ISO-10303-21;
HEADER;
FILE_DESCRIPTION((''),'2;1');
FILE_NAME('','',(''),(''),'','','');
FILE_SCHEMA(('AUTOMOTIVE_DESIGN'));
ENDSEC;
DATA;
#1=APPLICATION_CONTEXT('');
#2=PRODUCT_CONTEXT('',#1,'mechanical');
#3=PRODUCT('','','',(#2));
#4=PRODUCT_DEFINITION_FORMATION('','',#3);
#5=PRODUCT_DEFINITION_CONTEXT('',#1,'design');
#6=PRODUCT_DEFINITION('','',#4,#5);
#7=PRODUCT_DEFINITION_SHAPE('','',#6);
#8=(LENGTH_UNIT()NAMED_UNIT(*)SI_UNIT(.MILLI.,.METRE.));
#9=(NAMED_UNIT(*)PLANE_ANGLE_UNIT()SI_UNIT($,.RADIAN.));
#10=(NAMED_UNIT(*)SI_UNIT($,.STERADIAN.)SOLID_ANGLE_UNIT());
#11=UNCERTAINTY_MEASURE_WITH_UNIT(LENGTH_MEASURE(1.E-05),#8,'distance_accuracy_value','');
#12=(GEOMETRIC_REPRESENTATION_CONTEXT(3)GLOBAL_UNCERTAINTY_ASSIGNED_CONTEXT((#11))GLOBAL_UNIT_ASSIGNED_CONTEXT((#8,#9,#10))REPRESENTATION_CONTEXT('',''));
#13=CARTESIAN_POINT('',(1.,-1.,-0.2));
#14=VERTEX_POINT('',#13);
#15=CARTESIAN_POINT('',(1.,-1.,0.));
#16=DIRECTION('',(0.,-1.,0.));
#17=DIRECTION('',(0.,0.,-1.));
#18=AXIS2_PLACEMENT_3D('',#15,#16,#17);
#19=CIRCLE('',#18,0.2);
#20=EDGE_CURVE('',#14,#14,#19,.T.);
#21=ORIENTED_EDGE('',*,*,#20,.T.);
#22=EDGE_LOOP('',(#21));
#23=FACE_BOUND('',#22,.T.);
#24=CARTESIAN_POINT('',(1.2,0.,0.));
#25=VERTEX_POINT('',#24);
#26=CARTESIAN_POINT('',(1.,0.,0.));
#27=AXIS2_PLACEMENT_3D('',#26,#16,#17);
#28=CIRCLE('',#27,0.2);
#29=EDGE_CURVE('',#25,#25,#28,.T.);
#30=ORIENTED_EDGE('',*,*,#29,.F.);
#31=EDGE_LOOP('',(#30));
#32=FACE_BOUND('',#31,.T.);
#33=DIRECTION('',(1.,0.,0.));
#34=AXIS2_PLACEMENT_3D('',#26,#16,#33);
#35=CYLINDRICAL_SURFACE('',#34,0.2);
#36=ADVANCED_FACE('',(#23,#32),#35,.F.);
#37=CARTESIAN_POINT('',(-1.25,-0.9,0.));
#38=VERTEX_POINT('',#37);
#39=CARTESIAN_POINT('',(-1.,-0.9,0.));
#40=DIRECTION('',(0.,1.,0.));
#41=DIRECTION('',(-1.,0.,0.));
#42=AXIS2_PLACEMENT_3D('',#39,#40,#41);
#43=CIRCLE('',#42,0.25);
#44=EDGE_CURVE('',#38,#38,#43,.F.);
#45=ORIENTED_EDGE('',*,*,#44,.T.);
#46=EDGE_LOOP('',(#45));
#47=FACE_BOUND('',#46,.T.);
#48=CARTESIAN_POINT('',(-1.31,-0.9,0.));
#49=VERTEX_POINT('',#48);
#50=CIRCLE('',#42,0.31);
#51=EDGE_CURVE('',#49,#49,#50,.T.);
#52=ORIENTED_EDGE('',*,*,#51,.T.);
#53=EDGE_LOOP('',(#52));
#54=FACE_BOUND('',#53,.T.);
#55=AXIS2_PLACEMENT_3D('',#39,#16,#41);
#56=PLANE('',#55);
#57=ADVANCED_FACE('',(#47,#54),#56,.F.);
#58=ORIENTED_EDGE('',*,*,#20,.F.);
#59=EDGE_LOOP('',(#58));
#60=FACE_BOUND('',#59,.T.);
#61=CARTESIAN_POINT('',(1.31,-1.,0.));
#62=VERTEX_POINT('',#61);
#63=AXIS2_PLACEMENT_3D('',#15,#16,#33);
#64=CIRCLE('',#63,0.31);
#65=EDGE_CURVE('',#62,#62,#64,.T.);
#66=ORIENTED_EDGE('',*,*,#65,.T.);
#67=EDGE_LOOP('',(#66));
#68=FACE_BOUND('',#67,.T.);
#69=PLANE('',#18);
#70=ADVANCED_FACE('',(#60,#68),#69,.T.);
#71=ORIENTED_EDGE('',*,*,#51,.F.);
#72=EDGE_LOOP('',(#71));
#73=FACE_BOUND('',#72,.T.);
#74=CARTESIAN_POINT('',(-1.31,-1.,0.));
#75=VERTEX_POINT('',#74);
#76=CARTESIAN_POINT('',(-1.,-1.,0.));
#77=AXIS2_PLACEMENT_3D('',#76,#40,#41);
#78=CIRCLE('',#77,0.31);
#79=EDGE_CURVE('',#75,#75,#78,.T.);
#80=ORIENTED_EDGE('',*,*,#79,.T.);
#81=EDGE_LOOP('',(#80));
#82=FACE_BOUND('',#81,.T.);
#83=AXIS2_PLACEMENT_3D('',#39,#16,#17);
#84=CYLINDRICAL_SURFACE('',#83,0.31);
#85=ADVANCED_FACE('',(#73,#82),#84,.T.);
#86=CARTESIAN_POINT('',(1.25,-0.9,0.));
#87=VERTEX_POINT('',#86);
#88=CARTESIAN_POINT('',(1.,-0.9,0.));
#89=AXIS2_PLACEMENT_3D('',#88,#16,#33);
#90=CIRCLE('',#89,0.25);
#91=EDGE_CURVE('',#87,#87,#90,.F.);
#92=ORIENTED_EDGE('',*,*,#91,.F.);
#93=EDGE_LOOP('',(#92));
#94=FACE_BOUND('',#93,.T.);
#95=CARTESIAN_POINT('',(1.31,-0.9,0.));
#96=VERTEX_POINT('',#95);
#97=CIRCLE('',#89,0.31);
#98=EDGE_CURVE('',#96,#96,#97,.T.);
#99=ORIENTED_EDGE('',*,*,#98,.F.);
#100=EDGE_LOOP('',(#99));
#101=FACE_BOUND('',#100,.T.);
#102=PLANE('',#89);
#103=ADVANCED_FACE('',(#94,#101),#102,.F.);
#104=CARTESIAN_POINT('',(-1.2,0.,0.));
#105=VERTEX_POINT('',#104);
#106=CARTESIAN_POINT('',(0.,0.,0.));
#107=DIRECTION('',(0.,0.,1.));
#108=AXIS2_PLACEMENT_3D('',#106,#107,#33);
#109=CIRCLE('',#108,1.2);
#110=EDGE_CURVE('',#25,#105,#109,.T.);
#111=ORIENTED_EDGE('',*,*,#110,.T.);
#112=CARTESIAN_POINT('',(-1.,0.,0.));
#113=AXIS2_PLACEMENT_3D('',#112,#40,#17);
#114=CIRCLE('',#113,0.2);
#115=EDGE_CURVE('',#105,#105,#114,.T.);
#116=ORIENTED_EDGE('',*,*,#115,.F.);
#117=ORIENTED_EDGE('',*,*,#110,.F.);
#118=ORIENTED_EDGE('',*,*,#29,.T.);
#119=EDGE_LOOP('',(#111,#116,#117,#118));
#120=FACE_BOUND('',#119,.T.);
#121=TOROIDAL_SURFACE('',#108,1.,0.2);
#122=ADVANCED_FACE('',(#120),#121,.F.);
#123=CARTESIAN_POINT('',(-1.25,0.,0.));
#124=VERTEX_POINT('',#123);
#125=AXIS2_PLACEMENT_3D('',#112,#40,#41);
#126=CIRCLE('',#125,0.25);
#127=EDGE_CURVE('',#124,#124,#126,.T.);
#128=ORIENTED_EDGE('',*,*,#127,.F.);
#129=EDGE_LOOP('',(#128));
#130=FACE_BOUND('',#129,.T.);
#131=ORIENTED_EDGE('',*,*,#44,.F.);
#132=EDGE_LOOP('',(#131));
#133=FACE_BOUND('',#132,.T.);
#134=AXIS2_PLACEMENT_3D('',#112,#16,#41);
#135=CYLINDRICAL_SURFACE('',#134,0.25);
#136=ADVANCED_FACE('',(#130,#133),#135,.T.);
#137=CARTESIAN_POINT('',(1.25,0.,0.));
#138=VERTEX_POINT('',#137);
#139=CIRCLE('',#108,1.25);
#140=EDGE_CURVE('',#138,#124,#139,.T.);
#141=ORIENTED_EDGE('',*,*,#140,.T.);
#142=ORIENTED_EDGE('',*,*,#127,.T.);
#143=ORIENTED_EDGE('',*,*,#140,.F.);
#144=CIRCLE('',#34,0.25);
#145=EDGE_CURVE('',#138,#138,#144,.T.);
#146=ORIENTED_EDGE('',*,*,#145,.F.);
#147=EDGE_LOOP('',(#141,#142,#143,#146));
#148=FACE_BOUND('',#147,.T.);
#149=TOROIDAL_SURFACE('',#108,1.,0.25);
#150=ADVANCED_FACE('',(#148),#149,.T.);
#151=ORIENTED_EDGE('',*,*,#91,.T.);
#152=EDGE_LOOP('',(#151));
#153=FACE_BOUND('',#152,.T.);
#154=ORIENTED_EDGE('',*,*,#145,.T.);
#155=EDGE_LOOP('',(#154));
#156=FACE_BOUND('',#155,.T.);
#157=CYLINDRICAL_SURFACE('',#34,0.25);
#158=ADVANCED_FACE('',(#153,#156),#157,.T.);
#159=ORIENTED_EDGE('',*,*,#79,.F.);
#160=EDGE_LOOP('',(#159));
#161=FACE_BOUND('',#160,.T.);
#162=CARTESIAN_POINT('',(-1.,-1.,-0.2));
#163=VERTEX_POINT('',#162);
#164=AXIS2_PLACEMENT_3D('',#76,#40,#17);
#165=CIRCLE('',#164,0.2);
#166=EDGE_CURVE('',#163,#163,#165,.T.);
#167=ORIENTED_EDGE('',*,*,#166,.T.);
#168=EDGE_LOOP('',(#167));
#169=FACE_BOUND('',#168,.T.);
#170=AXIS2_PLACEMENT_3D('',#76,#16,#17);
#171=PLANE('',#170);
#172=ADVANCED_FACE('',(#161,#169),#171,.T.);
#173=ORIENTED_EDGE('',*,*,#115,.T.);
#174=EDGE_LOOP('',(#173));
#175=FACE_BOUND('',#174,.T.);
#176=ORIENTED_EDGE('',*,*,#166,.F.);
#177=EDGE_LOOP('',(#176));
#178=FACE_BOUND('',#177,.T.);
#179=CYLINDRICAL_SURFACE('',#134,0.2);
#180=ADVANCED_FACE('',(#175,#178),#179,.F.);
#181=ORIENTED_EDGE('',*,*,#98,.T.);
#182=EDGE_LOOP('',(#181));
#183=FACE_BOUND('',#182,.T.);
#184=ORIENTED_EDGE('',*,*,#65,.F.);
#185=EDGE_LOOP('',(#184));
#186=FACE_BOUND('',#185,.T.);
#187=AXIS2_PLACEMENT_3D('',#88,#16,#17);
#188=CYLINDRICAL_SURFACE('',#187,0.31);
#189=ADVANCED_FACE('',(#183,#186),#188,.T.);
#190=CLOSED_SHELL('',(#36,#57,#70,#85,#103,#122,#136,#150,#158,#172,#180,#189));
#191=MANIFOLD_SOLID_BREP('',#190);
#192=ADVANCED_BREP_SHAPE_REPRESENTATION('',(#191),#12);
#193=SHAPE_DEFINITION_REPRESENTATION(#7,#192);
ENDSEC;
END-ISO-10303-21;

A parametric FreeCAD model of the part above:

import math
import FreeCAD as App
import Part
import Sketcher
Q = App.Units.Quantity

doc = App.newDocument("Part")
params = doc.addObject("Spreadsheet::Sheet", "Params")
for row, (alias, value) in enumerate([
    ("sketch1_diameter", "0.5 mm"),
    ("sketch1_diameter2", "0.4 mm"),
    ("sketch2_radius", "1 mm"),
    ("sketch2_height", "1 mm"),
    ("sketch3_diameter", "0.62 mm"),
    ("sketch3_diameter2", "0.42 mm"),
    ("sketch4_height", "0.1 mm"),
], start=1):
    params.set(f"A{row}", alias)
    params.set(f"B{row}", "=" + value)
    params.setAlias(f"B{row}", alias)

body = doc.addObject("PartDesign::Body", "Body")

# Sketch on YZ plane
sketch1 = doc.addObject("Sketcher::SketchObject", "Sketch")
body.addObject(sketch1)
sketch1.AttachmentSupport = (doc.YZ_Plane, [""])
sketch1.MapMode = "FlatFace"
sketch1.addGeometry([
    Part.Circle(App.Vector(1, 0, 0), App.Vector(0, 0, 1), 0.25),
    Part.Circle(App.Vector(1, 0, 0), App.Vector(0, 0, 1), 0.2),
], False)
sketch1.addConstraint([
    Sketcher.Constraint("Coincident", 1, 3, 0, 3),
    Sketcher.Constraint("PointOnObject", 0, 3, -1),
    Sketcher.Constraint("Diameter", 0, Q("0.5 mm")),
    Sketcher.Constraint("Diameter", 1, Q("0.4 mm")),
    Sketcher.Constraint("DistanceX", -1, 1, 0, 3, Q("1 mm")),
])
sketch1.setExpression("Constraints[2]", "Params.sketch1_diameter")
sketch1.setExpression("Constraints[3]", "Params.sketch1_diameter2")

# Sketch on XY plane
sketch2 = doc.addObject("Sketcher::SketchObject", "Sketch001")
body.addObject(sketch2)
sketch2.AttachmentSupport = (doc.XY_Plane, [""])
sketch2.MapMode = "FlatFace"
sketch2.addGeometry([
    Part.LineSegment(App.Vector(1, -1, 0), App.Vector(1, 0, 0)),
    Part.ArcOfCircle(Part.Circle(App.Vector(0, 0, 0), App.Vector(0, 0, 1), 1), math.radians(0), math.radians(90)),
], False)
sketch2.addConstraint([
    Sketcher.Constraint("Tangent", 0, 2, 1, 1),
    Sketcher.Constraint("Vertical", 0),
    Sketcher.Constraint("Coincident", 1, 3, -1, 1),
    Sketcher.Constraint("PointOnObject", 1, 2, -2),
    Sketcher.Constraint("Radius", 1, Q("1 mm")),
    Sketcher.Constraint("DistanceY", 0, 1, 0, 2, Q("1 mm")),
])
sketch2.setExpression("Constraints[4]", "Params.sketch2_radius")
sketch2.setExpression("Constraints[5]", "Params.sketch2_height")
doc.recompute()

additivepipe = doc.addObject("PartDesign::AdditivePipe", "AdditivePipe")
body.addObject(additivepipe)
additivepipe.Profile = sketch1
additivepipe.Spine = (sketch2, ["Edge1", "Edge2"])

# Sketch on XZ plane
sketch3 = doc.addObject("Sketcher::SketchObject", "Sketch002")
body.addObject(sketch3)
sketch3.AttachmentSupport = (doc.XZ_Plane, [""])
sketch3.MapMode = "FlatFace"
sketch3.AttachmentOffset = App.Placement(App.Vector(0, 0, 1), App.Rotation())
sketch3.addGeometry([
    Part.Circle(App.Vector(1, 0, 0), App.Vector(0, 0, 1), 0.31),
    Part.Circle(App.Vector(1, 0, 0), App.Vector(0, 0, 1), 0.21),
], False)
sketch3.addConstraint([
    Sketcher.Constraint("Coincident", 1, 3, 0, 3),
    Sketcher.Constraint("PointOnObject", 0, 3, -1),
    Sketcher.Constraint("Diameter", 0, Q("0.62 mm")),
    Sketcher.Constraint("Diameter", 1, Q("0.42 mm")),
    Sketcher.Constraint("DistanceX", -1, 1, 0, 3, Q("1 mm")),
])
sketch3.setExpression("Constraints[2]", "Params.sketch3_diameter")
sketch3.setExpression("Constraints[3]", "Params.sketch3_diameter2")

# Sketch on XY plane
sketch4 = doc.addObject("Sketcher::SketchObject", "Sketch003")
body.addObject(sketch4)
sketch4.AttachmentSupport = (doc.XY_Plane, [""])
sketch4.MapMode = "FlatFace"
sketch4.addGeometry(Part.LineSegment(App.Vector(1, -1, 0), App.Vector(1, -0.9, 0)), False)
sketch4.addConstraint([
    Sketcher.Constraint("Vertical", 0),
    Sketcher.Constraint("DistanceY", 0, 1, 0, 2, Q("0.1 mm")),
    Sketcher.Constraint("DistanceX", -1, 1, 0, 1, Q("1 mm")),
    Sketcher.Constraint("DistanceY", 0, 1, -1, 1, Q("1 mm")),
])
sketch4.setExpression("Constraints[1]", "Params.sketch4_height")
doc.recompute()

additivepipe2 = doc.addObject("PartDesign::AdditivePipe", "AdditivePipe001")
body.addObject(additivepipe2)
additivepipe2.Profile = sketch3
additivepipe2.Spine = (sketch4, ["Edge1"])
body2 = doc.addObject("PartDesign::Body", "Body001")
doc.recompute()

body2.BaseFeature = body
doc.recompute()

mirroring = doc.addObject("Part::Mirroring", "Mirroring")
mirroring.Source = body
mirroring.Base = App.Vector(0, 0, 0)
mirroring.Normal = App.Vector(1, 0, 0)
body3 = doc.addObject("PartDesign::Body", "Body002")
body3.BaseFeature = mirroring
boolean = doc.addObject("PartDesign::Boolean", "Boolean")
body2.addObject(boolean)
boolean.Type = "Fuse"
boolean.addObjects([body3])
doc.recompute()
mirroring.Visibility = False

doc.recompute()
